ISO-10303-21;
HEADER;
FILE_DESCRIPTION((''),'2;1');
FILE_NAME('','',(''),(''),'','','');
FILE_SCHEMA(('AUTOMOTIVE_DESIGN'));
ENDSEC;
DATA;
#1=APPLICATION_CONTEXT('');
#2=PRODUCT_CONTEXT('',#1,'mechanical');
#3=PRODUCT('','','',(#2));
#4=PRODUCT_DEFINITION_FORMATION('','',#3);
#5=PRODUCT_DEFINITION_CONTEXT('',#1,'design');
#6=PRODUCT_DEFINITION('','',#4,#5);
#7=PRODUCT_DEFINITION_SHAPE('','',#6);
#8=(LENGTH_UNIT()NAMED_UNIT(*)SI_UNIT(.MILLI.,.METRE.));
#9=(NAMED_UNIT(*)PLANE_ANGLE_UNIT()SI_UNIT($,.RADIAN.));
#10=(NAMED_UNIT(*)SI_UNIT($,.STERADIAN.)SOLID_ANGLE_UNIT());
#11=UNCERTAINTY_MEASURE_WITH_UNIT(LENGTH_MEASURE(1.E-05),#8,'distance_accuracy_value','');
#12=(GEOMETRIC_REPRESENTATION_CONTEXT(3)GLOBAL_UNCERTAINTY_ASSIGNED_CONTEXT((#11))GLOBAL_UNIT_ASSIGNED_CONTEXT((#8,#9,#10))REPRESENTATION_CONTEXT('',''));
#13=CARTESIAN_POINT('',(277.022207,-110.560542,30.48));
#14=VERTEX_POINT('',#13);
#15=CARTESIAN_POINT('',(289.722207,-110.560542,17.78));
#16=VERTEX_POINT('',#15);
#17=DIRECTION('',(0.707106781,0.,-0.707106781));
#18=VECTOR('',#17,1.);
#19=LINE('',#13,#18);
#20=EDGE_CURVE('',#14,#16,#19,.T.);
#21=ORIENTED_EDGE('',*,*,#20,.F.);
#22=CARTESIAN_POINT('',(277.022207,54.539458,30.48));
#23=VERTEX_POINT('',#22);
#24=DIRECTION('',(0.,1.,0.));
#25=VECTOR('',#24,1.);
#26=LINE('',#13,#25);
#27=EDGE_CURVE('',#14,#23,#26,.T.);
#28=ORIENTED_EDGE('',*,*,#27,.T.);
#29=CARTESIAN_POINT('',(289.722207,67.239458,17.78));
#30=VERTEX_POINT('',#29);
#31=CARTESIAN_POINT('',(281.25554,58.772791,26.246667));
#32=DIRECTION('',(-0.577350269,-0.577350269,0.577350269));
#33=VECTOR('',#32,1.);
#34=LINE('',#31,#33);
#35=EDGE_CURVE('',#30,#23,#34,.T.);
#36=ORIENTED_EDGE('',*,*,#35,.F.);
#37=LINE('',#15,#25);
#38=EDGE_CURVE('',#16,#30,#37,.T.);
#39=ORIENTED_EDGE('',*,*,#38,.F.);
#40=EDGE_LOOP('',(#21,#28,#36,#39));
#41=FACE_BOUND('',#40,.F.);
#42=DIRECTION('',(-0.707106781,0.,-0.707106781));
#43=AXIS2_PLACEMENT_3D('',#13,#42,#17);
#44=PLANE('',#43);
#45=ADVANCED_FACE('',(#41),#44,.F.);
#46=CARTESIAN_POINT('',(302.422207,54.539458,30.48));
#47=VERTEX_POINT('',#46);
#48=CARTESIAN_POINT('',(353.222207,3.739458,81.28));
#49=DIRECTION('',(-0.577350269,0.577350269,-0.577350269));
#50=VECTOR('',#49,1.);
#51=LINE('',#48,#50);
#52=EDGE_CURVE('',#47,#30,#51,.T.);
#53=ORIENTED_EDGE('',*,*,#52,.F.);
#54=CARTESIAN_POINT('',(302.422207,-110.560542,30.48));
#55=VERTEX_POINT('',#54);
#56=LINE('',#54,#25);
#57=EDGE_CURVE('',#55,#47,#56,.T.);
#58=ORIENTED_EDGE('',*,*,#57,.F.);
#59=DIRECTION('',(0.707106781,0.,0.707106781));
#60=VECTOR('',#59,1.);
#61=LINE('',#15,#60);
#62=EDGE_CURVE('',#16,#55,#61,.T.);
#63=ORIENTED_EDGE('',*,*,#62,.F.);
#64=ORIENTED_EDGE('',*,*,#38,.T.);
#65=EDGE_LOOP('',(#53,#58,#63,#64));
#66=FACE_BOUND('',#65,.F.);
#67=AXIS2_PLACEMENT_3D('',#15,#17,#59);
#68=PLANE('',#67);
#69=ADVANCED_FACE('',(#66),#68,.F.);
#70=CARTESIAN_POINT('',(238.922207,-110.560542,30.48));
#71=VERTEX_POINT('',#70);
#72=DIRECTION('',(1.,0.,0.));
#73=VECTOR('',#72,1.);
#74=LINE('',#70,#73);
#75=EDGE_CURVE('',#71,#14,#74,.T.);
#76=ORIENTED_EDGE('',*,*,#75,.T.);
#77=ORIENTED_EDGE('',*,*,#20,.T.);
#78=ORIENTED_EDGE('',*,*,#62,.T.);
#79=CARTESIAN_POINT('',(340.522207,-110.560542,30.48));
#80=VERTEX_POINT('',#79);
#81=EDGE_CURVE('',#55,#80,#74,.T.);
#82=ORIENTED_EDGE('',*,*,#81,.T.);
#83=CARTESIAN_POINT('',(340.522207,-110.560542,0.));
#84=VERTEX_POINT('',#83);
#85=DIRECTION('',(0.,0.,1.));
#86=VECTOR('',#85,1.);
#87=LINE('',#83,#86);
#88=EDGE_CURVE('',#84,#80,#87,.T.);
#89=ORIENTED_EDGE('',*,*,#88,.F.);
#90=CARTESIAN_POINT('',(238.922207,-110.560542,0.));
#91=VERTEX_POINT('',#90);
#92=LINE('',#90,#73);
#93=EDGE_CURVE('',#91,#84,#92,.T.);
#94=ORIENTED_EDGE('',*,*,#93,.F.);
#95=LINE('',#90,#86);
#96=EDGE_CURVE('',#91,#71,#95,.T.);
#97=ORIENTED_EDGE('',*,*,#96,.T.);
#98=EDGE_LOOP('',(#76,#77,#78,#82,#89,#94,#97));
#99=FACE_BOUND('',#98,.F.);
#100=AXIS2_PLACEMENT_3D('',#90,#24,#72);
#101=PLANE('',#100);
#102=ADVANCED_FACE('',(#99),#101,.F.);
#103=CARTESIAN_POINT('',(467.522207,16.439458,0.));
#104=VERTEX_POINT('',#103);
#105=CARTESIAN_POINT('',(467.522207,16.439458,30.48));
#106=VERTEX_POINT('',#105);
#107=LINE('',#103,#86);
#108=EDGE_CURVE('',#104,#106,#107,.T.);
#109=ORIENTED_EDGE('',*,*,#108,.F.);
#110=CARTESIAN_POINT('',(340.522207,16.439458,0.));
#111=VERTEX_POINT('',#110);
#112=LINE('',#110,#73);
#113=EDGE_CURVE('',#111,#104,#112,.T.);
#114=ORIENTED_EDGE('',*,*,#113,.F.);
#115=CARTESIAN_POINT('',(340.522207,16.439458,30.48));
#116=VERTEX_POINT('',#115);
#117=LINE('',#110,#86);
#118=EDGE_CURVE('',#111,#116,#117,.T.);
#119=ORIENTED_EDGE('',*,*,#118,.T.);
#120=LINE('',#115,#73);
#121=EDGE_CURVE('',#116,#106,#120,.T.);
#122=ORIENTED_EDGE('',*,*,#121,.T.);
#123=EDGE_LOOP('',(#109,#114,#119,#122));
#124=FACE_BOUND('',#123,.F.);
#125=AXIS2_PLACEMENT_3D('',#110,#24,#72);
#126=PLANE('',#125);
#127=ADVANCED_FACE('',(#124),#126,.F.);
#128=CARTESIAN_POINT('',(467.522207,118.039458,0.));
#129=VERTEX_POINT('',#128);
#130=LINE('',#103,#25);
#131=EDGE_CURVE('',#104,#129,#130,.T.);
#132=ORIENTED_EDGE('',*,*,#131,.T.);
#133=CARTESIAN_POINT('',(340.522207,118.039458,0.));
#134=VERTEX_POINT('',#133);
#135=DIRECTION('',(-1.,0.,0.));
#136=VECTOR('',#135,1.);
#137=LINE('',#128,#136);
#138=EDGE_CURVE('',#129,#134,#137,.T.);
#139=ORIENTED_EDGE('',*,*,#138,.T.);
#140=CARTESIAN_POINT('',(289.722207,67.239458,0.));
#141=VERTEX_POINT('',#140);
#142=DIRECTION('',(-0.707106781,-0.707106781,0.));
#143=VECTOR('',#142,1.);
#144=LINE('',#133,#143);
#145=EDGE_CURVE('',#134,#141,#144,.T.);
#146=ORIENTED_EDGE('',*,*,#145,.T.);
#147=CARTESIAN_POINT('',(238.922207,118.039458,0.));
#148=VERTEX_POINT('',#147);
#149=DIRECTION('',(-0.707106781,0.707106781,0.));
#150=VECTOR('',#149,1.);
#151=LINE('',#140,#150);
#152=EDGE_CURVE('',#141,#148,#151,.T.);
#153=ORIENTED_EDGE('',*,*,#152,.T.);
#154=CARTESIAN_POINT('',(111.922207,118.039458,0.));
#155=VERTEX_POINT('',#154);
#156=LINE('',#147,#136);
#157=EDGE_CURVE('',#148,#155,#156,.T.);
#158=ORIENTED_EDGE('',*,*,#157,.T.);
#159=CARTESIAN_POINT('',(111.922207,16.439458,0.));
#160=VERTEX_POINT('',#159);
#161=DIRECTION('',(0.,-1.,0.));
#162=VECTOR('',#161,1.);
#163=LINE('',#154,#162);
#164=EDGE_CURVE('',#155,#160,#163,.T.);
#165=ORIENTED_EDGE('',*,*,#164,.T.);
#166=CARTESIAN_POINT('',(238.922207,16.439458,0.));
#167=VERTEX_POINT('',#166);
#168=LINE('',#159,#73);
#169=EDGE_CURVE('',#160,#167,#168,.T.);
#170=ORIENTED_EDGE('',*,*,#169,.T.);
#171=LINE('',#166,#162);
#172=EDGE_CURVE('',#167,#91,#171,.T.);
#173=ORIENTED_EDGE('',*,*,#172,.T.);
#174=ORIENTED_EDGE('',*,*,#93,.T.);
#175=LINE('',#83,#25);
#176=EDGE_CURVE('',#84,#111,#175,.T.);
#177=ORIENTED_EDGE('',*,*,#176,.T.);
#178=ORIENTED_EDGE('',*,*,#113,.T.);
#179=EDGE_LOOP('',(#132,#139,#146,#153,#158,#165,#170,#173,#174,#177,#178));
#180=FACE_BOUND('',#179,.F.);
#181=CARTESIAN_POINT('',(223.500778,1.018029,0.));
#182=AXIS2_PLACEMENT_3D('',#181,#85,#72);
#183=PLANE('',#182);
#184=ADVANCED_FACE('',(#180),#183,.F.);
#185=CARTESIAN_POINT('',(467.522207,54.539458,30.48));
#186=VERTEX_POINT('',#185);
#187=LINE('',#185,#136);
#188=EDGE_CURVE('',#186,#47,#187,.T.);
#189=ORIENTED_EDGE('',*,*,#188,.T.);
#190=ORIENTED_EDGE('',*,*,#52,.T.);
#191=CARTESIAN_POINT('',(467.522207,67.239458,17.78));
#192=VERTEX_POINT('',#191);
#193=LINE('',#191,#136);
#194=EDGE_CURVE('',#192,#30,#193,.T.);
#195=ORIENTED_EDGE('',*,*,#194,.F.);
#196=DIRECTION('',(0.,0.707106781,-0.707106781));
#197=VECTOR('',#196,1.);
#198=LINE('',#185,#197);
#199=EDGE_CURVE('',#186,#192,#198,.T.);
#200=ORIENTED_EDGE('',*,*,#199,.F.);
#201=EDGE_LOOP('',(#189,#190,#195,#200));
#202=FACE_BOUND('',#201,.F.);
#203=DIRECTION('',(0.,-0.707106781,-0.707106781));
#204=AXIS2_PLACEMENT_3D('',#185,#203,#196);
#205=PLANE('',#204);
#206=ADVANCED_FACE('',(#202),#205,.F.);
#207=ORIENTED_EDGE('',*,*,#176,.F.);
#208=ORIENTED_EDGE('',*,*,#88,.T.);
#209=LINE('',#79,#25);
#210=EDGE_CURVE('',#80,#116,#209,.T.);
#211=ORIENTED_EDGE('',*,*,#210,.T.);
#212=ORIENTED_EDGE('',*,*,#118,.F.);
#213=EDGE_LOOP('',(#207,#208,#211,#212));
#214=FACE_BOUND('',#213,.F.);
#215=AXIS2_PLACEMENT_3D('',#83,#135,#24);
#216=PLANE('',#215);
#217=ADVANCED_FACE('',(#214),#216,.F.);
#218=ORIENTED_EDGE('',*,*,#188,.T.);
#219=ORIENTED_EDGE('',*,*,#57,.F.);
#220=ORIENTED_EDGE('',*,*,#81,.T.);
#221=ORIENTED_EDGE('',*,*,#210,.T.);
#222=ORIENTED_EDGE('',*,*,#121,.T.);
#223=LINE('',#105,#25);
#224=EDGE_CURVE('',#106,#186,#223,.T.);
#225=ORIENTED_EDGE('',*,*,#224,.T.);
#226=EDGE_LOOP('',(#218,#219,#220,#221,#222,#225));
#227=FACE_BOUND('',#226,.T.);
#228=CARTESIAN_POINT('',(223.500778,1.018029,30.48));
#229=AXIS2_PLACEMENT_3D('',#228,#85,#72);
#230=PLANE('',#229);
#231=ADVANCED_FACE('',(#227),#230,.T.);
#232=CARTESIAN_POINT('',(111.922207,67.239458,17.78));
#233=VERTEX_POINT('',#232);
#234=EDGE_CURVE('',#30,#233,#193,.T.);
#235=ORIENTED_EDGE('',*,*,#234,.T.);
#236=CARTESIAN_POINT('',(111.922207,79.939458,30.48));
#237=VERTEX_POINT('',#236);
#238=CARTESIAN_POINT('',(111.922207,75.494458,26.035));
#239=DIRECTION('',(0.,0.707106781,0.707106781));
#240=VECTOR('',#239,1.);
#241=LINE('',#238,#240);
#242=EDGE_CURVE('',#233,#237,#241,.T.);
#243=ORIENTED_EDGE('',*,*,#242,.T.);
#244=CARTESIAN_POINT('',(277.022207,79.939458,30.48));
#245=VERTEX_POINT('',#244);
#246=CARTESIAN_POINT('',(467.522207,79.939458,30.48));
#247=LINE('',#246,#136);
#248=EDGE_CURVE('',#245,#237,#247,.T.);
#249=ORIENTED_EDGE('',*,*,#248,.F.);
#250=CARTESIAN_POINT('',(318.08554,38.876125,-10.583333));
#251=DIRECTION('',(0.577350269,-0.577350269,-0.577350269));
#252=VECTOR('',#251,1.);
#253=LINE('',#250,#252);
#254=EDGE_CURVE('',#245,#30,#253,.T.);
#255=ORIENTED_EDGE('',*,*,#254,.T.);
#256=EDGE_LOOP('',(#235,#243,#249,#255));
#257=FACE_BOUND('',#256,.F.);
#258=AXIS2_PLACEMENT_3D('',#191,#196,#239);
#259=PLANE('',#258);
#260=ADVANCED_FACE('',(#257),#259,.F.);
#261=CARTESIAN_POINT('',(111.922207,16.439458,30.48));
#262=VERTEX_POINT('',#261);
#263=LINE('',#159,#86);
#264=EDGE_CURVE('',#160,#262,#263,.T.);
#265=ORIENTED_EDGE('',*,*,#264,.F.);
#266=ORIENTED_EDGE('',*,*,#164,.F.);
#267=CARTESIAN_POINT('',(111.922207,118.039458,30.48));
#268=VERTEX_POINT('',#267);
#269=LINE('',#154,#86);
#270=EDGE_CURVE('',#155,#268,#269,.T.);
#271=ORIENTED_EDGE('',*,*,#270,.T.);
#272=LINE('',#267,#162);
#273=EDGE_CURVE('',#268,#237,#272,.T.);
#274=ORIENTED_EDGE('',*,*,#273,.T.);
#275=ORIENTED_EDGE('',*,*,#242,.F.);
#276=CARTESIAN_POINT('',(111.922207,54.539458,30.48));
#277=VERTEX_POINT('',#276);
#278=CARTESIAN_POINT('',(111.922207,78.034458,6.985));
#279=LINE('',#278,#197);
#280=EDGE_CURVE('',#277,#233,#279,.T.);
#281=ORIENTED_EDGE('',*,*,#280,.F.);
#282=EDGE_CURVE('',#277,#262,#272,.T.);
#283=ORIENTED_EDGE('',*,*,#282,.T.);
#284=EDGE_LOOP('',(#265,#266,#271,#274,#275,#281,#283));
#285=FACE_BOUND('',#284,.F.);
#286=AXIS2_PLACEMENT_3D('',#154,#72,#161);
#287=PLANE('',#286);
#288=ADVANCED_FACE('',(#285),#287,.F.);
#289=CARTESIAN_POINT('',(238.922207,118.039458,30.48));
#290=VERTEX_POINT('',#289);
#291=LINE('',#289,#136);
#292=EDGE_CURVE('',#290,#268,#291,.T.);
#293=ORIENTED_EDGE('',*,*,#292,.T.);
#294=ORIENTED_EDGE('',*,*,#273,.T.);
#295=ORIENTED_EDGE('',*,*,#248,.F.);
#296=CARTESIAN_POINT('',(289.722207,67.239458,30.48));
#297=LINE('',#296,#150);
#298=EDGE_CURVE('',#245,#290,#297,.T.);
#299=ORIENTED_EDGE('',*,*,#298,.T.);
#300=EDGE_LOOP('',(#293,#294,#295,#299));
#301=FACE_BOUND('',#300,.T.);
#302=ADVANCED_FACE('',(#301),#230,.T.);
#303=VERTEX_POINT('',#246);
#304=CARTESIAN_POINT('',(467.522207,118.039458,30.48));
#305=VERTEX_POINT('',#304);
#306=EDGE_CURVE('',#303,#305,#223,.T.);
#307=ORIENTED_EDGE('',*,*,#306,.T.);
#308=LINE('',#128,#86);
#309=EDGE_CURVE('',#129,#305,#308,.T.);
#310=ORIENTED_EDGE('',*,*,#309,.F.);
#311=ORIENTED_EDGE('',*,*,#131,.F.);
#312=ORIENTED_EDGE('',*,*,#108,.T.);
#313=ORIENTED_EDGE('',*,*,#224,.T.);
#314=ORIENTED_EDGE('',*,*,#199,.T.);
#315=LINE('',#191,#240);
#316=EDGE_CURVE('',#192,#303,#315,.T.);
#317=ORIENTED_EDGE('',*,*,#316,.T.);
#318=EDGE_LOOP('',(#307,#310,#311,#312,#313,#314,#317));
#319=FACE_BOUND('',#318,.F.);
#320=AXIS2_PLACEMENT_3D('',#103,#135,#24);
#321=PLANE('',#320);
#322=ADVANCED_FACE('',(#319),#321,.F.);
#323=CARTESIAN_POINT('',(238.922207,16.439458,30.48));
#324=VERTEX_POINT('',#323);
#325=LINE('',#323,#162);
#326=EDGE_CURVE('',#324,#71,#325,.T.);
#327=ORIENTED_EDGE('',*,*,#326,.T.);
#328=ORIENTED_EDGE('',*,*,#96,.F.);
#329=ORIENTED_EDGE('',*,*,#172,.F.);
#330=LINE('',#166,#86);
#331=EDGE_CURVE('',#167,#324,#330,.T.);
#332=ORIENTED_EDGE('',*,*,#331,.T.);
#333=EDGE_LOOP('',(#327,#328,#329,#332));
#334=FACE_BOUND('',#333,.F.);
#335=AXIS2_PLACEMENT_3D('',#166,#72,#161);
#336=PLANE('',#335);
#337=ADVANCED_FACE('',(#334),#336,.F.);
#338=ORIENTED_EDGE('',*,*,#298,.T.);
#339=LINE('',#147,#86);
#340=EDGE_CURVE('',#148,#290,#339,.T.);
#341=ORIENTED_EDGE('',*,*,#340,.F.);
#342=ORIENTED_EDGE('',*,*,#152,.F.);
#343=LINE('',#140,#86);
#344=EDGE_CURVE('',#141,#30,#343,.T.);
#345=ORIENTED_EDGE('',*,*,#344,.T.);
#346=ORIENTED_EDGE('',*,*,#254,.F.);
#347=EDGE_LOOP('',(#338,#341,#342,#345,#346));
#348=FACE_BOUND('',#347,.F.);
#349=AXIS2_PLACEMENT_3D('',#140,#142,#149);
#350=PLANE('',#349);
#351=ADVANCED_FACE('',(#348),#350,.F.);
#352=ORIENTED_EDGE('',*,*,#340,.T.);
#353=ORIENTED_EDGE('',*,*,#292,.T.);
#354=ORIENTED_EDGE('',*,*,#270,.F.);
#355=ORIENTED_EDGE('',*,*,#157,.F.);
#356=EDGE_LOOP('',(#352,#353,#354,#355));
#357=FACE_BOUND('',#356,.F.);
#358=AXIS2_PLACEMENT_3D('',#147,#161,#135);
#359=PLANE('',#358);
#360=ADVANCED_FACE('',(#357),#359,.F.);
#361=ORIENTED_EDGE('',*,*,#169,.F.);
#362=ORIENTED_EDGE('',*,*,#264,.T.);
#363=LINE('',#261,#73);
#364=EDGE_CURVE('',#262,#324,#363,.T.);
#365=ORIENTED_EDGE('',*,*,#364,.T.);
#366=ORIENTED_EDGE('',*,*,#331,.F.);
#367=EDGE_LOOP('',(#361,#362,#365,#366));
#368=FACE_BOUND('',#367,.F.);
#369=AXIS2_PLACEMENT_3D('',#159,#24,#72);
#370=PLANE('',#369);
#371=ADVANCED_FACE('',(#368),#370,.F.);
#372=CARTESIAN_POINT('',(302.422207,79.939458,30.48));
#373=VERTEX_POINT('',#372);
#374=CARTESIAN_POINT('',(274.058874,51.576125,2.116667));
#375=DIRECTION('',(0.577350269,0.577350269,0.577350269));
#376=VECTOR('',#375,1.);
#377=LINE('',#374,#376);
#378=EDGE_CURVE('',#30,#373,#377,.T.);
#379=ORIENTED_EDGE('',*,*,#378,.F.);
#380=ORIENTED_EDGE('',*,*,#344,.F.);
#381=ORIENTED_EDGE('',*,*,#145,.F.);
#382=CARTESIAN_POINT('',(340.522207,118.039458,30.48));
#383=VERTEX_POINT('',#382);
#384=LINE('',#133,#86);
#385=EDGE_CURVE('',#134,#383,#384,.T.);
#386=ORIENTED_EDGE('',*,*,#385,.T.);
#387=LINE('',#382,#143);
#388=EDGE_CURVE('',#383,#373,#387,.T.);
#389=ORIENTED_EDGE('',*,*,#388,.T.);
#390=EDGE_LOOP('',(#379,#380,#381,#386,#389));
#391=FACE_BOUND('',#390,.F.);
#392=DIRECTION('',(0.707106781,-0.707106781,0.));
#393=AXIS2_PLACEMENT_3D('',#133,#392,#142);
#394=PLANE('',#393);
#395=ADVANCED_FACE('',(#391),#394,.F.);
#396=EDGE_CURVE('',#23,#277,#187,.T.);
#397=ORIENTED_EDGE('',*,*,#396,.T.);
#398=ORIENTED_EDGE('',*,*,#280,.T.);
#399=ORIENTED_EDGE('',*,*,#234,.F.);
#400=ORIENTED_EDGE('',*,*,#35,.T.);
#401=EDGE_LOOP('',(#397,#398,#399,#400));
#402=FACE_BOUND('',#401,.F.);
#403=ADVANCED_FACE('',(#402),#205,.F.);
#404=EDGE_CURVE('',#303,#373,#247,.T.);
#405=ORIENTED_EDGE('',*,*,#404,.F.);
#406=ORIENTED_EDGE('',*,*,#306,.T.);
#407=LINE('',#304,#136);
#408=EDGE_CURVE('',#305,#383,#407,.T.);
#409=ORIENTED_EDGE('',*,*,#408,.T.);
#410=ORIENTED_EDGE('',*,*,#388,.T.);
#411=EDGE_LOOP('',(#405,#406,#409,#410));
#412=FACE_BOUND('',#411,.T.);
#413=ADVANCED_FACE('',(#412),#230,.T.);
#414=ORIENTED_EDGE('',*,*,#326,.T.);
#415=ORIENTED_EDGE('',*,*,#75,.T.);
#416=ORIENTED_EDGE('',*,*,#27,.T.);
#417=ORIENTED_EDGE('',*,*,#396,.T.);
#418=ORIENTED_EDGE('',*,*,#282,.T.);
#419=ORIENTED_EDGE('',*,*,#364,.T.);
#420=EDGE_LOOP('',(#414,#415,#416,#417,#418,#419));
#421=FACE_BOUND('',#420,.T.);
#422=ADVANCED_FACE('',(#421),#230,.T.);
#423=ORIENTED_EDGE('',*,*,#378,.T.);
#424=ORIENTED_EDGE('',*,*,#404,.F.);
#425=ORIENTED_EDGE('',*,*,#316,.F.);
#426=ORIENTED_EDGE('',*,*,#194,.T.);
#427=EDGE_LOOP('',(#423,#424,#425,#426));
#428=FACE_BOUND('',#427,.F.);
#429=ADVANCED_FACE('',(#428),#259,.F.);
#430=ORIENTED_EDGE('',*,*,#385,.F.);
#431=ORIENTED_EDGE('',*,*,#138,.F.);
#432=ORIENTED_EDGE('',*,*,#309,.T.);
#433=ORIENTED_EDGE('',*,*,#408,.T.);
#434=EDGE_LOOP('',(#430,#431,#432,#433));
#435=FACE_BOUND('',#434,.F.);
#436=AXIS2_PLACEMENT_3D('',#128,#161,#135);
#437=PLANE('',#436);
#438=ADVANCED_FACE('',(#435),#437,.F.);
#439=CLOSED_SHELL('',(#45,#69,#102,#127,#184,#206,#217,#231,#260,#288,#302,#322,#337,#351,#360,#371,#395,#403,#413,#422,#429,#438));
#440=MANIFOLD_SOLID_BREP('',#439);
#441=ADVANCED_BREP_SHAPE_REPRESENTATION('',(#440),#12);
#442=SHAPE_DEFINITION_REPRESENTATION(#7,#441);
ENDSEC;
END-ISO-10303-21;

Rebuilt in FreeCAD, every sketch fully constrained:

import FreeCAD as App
import Part
import Sketcher

V = App.Vector
Q = App.Units.Quantity


def add_polygon(sketch, points):
    """Adds a closed chain of lines whose ends are joined by coincident constraints."""
    first, n = sketch.GeometryCount, len(points)
    for a, b in zip(points, points[1:] + points[:1]):
        sketch.addGeometry(Part.LineSegment(App.Vector(*a, 0), App.Vector(*b, 0)), False)
    for i in range(n):
        sketch.addConstraint(Sketcher.Constraint("Coincident", first + i, 2, first + (i + 1) % n, 1))

doc = App.newDocument("Part")
body = doc.addObject("PartDesign::Body", "Body")

# Sketch on XY plane
sketch1 = body.newObject("Sketcher::SketchObject", "Sketch")
sketch1.AttachmentSupport = (doc.getObject("XY_Plane"), [""])
sketch1.MapMode = "FlatFace"
add_polygon(sketch1, [(239, -111), (341, -111), (341, 16), (468, 16), (468, 118), (341, 118), (290, 67), (239, 118), (112, 118), (112, 16), (239, 16)])  # lines 0-10
sketch1.addConstraint(Sketcher.Constraint("Horizontal", 0))
sketch1.addConstraint(Sketcher.Constraint("Vertical", 1))
sketch1.addConstraint(Sketcher.Constraint("Horizontal", 2))
sketch1.addConstraint(Sketcher.Constraint("Vertical", 3))
sketch1.addConstraint(Sketcher.Constraint("Horizontal", 4))
sketch1.addConstraint(Sketcher.Constraint("Horizontal", 7))
sketch1.addConstraint(Sketcher.Constraint("Vertical", 8))
sketch1.addConstraint(Sketcher.Constraint("Horizontal", 9))
sketch1.addConstraint(Sketcher.Constraint("Vertical", 10))
sketch1.addConstraint(Sketcher.Constraint("Perpendicular", 5, 6))
sketch1.addConstraint(Sketcher.Constraint("Horizontal", 4, 2, 6, 2))
sketch1.addConstraint(Sketcher.Constraint("Horizontal", 2, 2, 8, 2))
sketch1.addConstraint(Sketcher.Constraint("Vertical", 1, 2, 4, 2))
sketch1.addConstraint(Sketcher.Constraint("Vertical", 6, 2, 9, 2))
sketch1.addConstraint(Sketcher.Constraint("Equal", 4, 7))
sketch1.addConstraint(Sketcher.Constraint("Equal", 9, 1))
sketch1.addConstraint(Sketcher.Constraint("Equal", 0, 3))
sketch1.addConstraint(Sketcher.Constraint("Equal", 5, 6))
sketch1.addConstraint(Sketcher.Constraint("DistanceX", 0, 1, 0, 2, Q("4 in")))
sketch1.addConstraint(Sketcher.Constraint("DistanceX", 2, 1, 2, 2, Q("5 in")))
sketch1.addConstraint(Sketcher.Constraint("DistanceY", 0, 2, -1, 1, 110.560542))
sketch1.addConstraint(Sketcher.Constraint("DistanceX", -1, 1, 0, 2, 340.522207))
pad1 = body.newObject("PartDesign::Pad", "Pad")
pad1.Profile = sketch1
pad1.Length = Q("1.2 in")

# Sketch on XZ plane
sketch2 = body.newObject("Sketcher::SketchObject", "Sketch001")
sketch2.AttachmentSupport = (doc.getObject("XZ_Plane"), [""])
sketch2.MapMode = "FlatFace"
sketch2.AttachmentOffset = App.Placement(V(0, 0, 110.560542), App.Rotation())
add_polygon(sketch2, [(302, 30), (277, 30), (290, 18)])  # lines 0-2
sketch2.addConstraint(Sketcher.Constraint("Horizontal", 0))
sketch2.addConstraint(Sketcher.Constraint("Perpendicular", 1, 2))
sketch2.addConstraint(Sketcher.Constraint("Equal", 1, 2))
sketch2.addConstraint(Sketcher.Constraint("DistanceX", 0, 2, 0, 1, Q("1 in")))
sketch2.addConstraint(Sketcher.Constraint("DistanceY", -1, 1, 0, 2, Q("1.2 in")))
sketch2.addConstraint(Sketcher.Constraint("DistanceX", -1, 1, 0, 2, 277.022207))
pocket1 = body.newObject("PartDesign::Pocket", "Pocket")
pocket1.Profile = sketch2
pocket1.Type = "ThroughAll"

# Sketch on YZ plane
sketch3 = body.newObject("Sketcher::SketchObject", "Sketch002")
sketch3.AttachmentSupport = (doc.getObject("YZ_Plane"), [""])
sketch3.MapMode = "FlatFace"
sketch3.AttachmentOffset = App.Placement(V(0, 0, 467.522207), App.Rotation())
add_polygon(sketch3, [(67, 18), (80, 30), (55, 30)])  # lines 0-2
sketch3.addConstraint(Sketcher.Constraint("Horizontal", 1))
sketch3.addConstraint(Sketcher.Constraint("Perpendicular", 0, 2))
sketch3.addConstraint(Sketcher.Constraint("Equal", 0, 2))
sketch3.addConstraint(Sketcher.Constraint("DistanceX", 1, 2, 1, 1, Q("1 in")))
sketch3.addConstraint(Sketcher.Constraint("DistanceY", -1, 1, 0, 2, Q("1.2 in")))
sketch3.addConstraint(Sketcher.Constraint("DistanceX", -1, 1, 0, 2, 79.939458))
pocket2 = body.newObject("PartDesign::Pocket", "Pocket001")
pocket2.Profile = sketch3
pocket2.Type = "ThroughAll"

doc.recompute()
